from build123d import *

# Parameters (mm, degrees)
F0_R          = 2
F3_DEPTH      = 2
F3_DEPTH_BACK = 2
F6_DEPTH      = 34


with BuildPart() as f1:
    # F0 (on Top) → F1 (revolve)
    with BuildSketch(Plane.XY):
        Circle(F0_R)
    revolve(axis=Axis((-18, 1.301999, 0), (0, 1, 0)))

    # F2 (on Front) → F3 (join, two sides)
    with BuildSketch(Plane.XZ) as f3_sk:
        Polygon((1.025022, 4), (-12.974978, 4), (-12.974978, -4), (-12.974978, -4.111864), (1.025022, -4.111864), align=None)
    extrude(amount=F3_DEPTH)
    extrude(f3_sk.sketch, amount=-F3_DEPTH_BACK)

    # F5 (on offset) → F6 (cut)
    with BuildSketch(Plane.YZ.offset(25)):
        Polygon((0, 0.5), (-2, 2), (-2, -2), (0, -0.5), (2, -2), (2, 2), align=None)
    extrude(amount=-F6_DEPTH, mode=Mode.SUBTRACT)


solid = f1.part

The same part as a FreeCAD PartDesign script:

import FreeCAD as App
import Part
import Sketcher
Q = App.Units.Quantity


def add_polygon(sketch, points):
    """Adds a closed chain of lines whose ends are joined by coincident constraints."""
    first, n = sketch.GeometryCount, len(points)
    for a, b in zip(points, points[1:] + points[:1]):
        sketch.addGeometry(Part.LineSegment(App.Vector(*a, 0), App.Vector(*b, 0)), False)
    for i in range(n):
        sketch.addConstraint(Sketcher.Constraint("Coincident", first + i, 2, first + (i + 1) % n, 1))

doc = App.newDocument("Part")
body = doc.addObject("PartDesign::Body", "Body")

# Sketch on XY plane
sketch1 = doc.addObject("Sketcher::SketchObject", "Sketch")
body.addObject(sketch1)
sketch1.AttachmentSupport = (doc.XY_Plane, [""])
sketch1.MapMode = "FlatFace"
sketch1.addGeometry(Part.Circle(App.Vector(0, 0, 0), App.Vector(0, 0, 1), 2), False)
sketch1.addGeometry(Part.LineSegment(App.Vector(-18, 0, 0), App.Vector(-18, 10, 0)), True)  # axis
sketch1.addConstraint([
    Sketcher.Constraint("Vertical", 1),
    Sketcher.Constraint("Coincident", 0, 3, -1, 1),
    Sketcher.Constraint("PointOnObject", 1, 1, -1),
    Sketcher.Constraint("Diameter", 0, Q("4 mm")),
    Sketcher.Constraint("DistanceY", 1, 1, 1, 2, Q("10 mm")),
    Sketcher.Constraint("DistanceX", 1, 1, -1, 1, Q("18 mm")),
])
revolution = doc.addObject("PartDesign::Revolution", "Revolution")
body.addObject(revolution)
revolution.Profile = sketch1
revolution.ReferenceAxis = (sketch1, ["Axis0"])
revolution.Angle = 360

# Sketch on XZ plane
sketch2 = doc.addObject("Sketcher::SketchObject", "Sketch001")
body.addObject(sketch2)
sketch2.AttachmentSupport = (doc.XZ_Plane, [""])
sketch2.MapMode = "FlatFace"
add_polygon(sketch2, [(1, 4), (-13, 4), (-13, -4), (1, -4)])  # lines 0-3
sketch2.addConstraint([
    Sketcher.Constraint("Horizontal", 0),
    Sketcher.Constraint("Vertical", 1),
    Sketcher.Constraint("Horizontal", 2),
    Sketcher.Constraint("Vertical", 3),
    Sketcher.Constraint("DistanceX", 0, 2, 0, 1, Q("14 mm")),
    Sketcher.Constraint("DistanceY", -1, 1, 0, 2, Q("4 mm")),
    Sketcher.Constraint("DistanceY", 1, 2, 1, 1, Q("8.111864 mm")),
    Sketcher.Constraint("DistanceX", 0, 2, -1, 1, Q("12.974978 mm")),
])
pad1 = doc.addObject("PartDesign::Pad", "Pad")
body.addObject(pad1)
pad1.Profile = sketch2
pad1.Type = "TwoLengths"
pad1.Length = 2
pad1.Length2 = 2

# Sketch on YZ plane
sketch3 = doc.addObject("Sketcher::SketchObject", "Sketch002")
body.addObject(sketch3)
sketch3.AttachmentSupport = (doc.YZ_Plane, [""])
sketch3.MapMode = "FlatFace"
sketch3.AttachmentOffset = App.Placement(App.Vector(0, 0, 25), App.Rotation())
add_polygon(sketch3, [(0, 0.5), (-2, 2), (-2, -2), (0, -0.5), (2, -2), (2, 2)])  # lines 0-5
sketch3.addConstraint([
    Sketcher.Constraint("Vertical", 1),
    Sketcher.Constraint("Vertical", 4),
    Sketcher.Constraint("Symmetric", 0, 2, 3, 2, -1, 1),
    Sketcher.Constraint("Symmetric", 2, 2, 5, 2, -1, 1),
    Sketcher.Constraint("PointOnObject", 2, 2, -2),
    Sketcher.Constraint("Parallel", 2, 5),
    Sketcher.Constraint("Horizontal", 1, 2, 3, 2),
    Sketcher.Constraint("DistanceY", 1, 2, 1, 1, Q("4 mm")),
    Sketcher.Constraint("DistanceX", 0, 2, -1, 1, Q("2 mm")),
    Sketcher.Constraint("DistanceY", 2, 2, 5, 2, Q("1 mm")),
])
pocket1 = doc.addObject("PartDesign::Pocket", "Pocket")
body.addObject(pocket1)
pocket1.Profile = sketch3
pocket1.Length = 34

doc.recompute()
